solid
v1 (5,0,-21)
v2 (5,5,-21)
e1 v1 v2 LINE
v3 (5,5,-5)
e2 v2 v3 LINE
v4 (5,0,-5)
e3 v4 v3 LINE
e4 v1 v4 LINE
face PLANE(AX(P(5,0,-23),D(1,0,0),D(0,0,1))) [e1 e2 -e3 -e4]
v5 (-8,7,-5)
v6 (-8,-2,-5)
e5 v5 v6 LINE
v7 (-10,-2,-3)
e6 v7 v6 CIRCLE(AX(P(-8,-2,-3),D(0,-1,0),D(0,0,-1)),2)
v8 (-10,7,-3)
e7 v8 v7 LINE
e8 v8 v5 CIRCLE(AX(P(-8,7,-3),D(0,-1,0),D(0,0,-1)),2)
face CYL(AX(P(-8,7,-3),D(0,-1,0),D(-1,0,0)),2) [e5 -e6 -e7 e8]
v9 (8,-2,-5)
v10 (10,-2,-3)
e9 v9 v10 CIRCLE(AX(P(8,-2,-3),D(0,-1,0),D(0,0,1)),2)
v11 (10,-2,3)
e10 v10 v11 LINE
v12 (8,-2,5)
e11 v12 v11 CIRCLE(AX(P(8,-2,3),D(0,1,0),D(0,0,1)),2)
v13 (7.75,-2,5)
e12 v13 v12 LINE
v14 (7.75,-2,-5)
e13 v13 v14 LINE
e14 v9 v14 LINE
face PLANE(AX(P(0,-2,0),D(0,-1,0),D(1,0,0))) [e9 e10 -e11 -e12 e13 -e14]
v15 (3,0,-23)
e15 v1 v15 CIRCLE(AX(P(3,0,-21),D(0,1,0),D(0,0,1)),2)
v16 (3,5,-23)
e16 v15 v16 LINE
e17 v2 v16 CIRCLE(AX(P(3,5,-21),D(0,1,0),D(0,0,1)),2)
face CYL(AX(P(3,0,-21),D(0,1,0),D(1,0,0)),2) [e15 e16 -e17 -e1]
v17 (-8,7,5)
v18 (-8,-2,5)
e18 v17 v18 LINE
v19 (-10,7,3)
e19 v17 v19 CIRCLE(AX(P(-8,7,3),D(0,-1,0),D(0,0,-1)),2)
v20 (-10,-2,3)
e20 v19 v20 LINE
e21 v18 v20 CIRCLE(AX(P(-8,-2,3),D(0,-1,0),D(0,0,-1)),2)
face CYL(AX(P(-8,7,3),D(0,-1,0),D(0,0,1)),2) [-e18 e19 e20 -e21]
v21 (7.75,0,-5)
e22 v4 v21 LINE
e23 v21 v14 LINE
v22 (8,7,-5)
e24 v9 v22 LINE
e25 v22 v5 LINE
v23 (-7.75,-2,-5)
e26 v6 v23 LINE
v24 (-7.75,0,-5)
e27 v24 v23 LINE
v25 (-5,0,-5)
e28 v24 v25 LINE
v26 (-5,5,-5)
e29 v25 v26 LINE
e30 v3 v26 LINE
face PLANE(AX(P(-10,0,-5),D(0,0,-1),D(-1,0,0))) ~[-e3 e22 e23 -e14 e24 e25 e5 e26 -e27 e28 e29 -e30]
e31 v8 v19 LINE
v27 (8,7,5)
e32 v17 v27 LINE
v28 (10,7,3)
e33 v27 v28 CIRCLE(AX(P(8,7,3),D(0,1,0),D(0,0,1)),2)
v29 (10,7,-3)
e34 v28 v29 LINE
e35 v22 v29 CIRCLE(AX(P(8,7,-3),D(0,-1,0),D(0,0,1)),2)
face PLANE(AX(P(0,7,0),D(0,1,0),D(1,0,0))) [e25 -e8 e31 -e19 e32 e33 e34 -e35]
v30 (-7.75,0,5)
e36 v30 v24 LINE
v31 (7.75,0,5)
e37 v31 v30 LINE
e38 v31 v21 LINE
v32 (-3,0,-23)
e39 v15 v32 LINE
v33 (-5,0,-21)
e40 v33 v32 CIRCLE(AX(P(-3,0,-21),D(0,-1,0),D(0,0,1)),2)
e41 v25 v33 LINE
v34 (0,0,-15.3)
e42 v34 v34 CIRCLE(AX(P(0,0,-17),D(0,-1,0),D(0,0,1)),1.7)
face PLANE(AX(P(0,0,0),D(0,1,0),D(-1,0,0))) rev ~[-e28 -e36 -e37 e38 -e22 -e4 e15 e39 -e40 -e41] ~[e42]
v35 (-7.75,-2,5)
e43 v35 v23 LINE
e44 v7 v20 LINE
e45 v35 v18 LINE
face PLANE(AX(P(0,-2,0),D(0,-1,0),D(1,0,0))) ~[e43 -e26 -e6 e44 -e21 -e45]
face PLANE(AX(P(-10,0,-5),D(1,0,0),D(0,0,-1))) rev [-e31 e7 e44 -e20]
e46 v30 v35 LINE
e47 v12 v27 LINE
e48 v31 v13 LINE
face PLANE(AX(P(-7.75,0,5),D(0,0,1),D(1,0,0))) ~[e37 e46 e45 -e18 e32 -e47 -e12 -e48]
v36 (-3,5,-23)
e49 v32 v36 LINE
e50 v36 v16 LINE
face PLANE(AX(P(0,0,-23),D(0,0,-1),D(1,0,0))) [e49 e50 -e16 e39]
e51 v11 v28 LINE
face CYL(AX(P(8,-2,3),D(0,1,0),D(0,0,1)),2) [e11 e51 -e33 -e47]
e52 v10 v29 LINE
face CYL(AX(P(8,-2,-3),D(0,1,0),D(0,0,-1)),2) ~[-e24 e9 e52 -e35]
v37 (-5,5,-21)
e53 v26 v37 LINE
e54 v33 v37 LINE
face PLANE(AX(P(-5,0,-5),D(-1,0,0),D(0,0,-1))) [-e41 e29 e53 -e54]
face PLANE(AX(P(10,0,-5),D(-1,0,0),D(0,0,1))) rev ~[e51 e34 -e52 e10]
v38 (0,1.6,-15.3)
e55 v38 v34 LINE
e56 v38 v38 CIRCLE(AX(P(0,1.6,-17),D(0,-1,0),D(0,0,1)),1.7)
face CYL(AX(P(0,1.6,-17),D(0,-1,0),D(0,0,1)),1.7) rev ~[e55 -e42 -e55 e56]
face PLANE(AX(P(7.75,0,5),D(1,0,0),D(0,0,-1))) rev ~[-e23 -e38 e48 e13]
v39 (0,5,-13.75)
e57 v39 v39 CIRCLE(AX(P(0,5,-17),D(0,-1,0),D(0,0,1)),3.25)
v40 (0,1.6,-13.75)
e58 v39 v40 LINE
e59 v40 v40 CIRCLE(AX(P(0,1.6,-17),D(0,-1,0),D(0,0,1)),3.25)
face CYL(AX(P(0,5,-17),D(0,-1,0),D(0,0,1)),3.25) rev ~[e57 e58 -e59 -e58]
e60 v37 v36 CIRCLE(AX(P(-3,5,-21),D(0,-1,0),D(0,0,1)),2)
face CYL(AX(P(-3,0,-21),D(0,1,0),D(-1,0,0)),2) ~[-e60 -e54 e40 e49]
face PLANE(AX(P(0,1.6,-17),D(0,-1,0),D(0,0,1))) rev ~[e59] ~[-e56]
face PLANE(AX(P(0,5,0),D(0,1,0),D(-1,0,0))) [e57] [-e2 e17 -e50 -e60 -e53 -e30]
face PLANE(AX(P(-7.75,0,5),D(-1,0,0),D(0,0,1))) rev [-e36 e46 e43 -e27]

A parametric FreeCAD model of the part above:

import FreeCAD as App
import Part
import Sketcher

V = App.Vector


def edges_at(feature, points):
    """Names of the edges that pass closest to the given points."""
    edges = feature.Shape.Edges
    near = lambda p: min(range(len(edges)), key=lambda i: edges[i].distToShape(Part.Vertex(*p))[0])
    return sorted({f"Edge{near(p) + 1}" for p in points})

doc = App.newDocument("Part")
body = doc.addObject("PartDesign::Body", "Body")

sketch1 = body.newObject("Sketcher::SketchObject", "Sketch")
sketch1.AttachmentSupport = (doc.getObject("XZ_Plane"), [""])
sketch1.MapMode = "FlatFace"
sketch1.addGeometry([
    Part.LineSegment(V(5, -23, 0), V(-5, -23, 0)),
    Part.LineSegment(V(-5, -23, 0), V(-5, -5, 0)),
    Part.LineSegment(V(-5, -5, 0), V(-10, -5, 0)),
    Part.LineSegment(V(-10, -5, 0), V(-10, 5, 0)),
    Part.LineSegment(V(-10, 5, 0), V(10, 5, 0)),
    Part.LineSegment(V(10, 5, 0), V(10, -5, 0)),
    Part.LineSegment(V(10, -5, 0), V(5, -5, 0)),
    Part.LineSegment(V(5, -5, 0), V(5, -23, 0)),
], False)
sketch1.addConstraint([
    Sketcher.Constraint("Coincident", 0, 2, 1, 1),
    Sketcher.Constraint("Coincident", 1, 2, 2, 1),
    Sketcher.Constraint("Coincident", 2, 2, 3, 1),
    Sketcher.Constraint("Coincident", 3, 2, 4, 1),
    Sketcher.Constraint("Coincident", 4, 2, 5, 1),
    Sketcher.Constraint("Coincident", 5, 2, 6, 1),
    Sketcher.Constraint("Coincident", 6, 2, 7, 1),
    Sketcher.Constraint("Coincident", 7, 2, 0, 1),
    Sketcher.Constraint("Horizontal", 0),
    Sketcher.Constraint("Vertical", 1),
    Sketcher.Constraint("Horizontal", 2),
    Sketcher.Constraint("Vertical", 3),
    Sketcher.Constraint("Horizontal", 4),
    Sketcher.Constraint("Vertical", 5),
    Sketcher.Constraint("Horizontal", 6),
    Sketcher.Constraint("Vertical", 7),
    Sketcher.Constraint("Symmetric", 2, 2, 4, 2, -1, 1),
    Sketcher.Constraint("Symmetric", 1, 2, 6, 2, -2),
    Sketcher.Constraint("Equal", 0, 3),
    Sketcher.Constraint("DistanceX", 0, 2, 0, 1, 10.0),
    Sketcher.Constraint("DistanceX", 4, 1, 4, 2, 20.0),
    Sketcher.Constraint("DistanceY", 1, 1, 1, 2, 18.0),
])
pad1 = body.newObject("PartDesign::Pad", "Pad")
pad1.Profile = sketch1
pad1.Length = 5
pad1.Reversed = True

sketch2 = body.newObject("Sketcher::SketchObject", "Sketch001")
sketch2.AttachmentSupport = (doc.getObject("XZ_Plane"), [""])
sketch2.MapMode = "FlatFace"
sketch2.AttachmentOffset = App.Placement(V(0, 0, -5), App.Rotation())
sketch2.addGeometry(Part.Circle(V(0, -17, 0), V(0, 0, 1), 1.7), False)
sketch2.addConstraint([
    Sketcher.Constraint("PointOnObject", 0, 3, -2),
    Sketcher.Constraint("Diameter", 0, 3.4),
    Sketcher.Constraint("DistanceY", 0, 3, -1, 1, 17.0),
])
doc.recompute()
hole = body.newObject("PartDesign::Hole", "Hole")
hole.Profile = sketch2
hole.ThreadType = "None"
hole.Diameter = 3.4
hole.DepthType = "ThroughAll"
hole.HoleCutType = "Counterbore"
hole.HoleCutDiameter = 6.5
hole.HoleCutDepth = 3.4
hole.Reversed = True

sketch3 = body.newObject("Sketcher::SketchObject", "Sketch002")
sketch3.AttachmentSupport = (doc.getObject("XZ_Plane"), [""])
sketch3.MapMode = "FlatFace"
sketch3.AttachmentOffset = App.Placement(V(0, 0, -5), App.Rotation())
sketch3.addGeometry([
    Part.LineSegment(V(-10, -5, 0), V(-10, 5, 0)),
    Part.LineSegment(V(-10, 5, 0), V(10, 5, 0)),
    Part.LineSegment(V(10, 5, 0), V(10, -5, 0)),
    Part.LineSegment(V(10, -5, 0), V(-10, -5, 0)),
], False)
sketch3.addConstraint([
    Sketcher.Constraint("Coincident", 0, 2, 1, 1),
    Sketcher.Constraint("Coincident", 1, 2, 2, 1),
    Sketcher.Constraint("Coincident", 2, 2, 3, 1),
    Sketcher.Constraint("Coincident", 3, 2, 0, 1),
    Sketcher.Constraint("Vertical", 0),
    Sketcher.Constraint("Horizontal", 1),
    Sketcher.Constraint("Vertical", 2),
    Sketcher.Constraint("Horizontal", 3),
    Sketcher.Constraint("Symmetric", 0, 2, 2, 2, -1, 1),
    Sketcher.Constraint("DistanceX", 1, 1, 1, 2, 20.0),
    Sketcher.Constraint("DistanceY", 0, 1, 0, 2, 10.0),
])
pad2 = body.newObject("PartDesign::Pad", "Pad001")
pad2.Profile = sketch3
pad2.Length = 2
pad2.Reversed = True

sketch4 = body.newObject("Sketcher::SketchObject", "Sketch003")
sketch4.AttachmentSupport = (doc.getObject("XZ_Plane"), [""])
sketch4.MapMode = "FlatFace"
sketch4.addGeometry([
    Part.LineSegment(V(10, 5, 0), V(7.75, 5, 0)),
    Part.LineSegment(V(7.75, 5, 0), V(7.75, -5, 0)),
    Part.LineSegment(V(7.75, -5, 0), V(10, -5, 0)),
    Part.LineSegment(V(10, -5, 0), V(10, 5, 0)),
], False)
sketch4.addConstraint([
    Sketcher.Constraint("Coincident", 0, 2, 1, 1),
    Sketcher.Constraint("Coincident", 1, 2, 2, 1),
    Sketcher.Constraint("Coincident", 2, 2, 3, 1),
    Sketcher.Constraint("Coincident", 3, 2, 0, 1),
    Sketcher.Constraint("Horizontal", 0),
    Sketcher.Constraint("Vertical", 1),
    Sketcher.Constraint("Horizontal", 2),
    Sketcher.Constraint("Vertical", 3),
    Sketcher.Constraint("DistanceX", 0, 2, 0, 1, 2.25),
    Sketcher.Constraint("DistanceY", 1, 2, 1, 1, 10.0),
    Sketcher.Constraint("DistanceY", -1, 1, 0, 2, 5.0),
    Sketcher.Constraint("DistanceX", -1, 1, 2, 2, 10.0),
])
pad3 = body.newObject("PartDesign::Pad", "Pad002")
pad3.Profile = sketch4
pad3.Length = 2
doc.recompute()

mirrored = body.newObject("PartDesign::Mirrored", "Mirrored")
mirrored.Originals = [pad3]
mirrored.MirrorPlane = (doc.getObject("YZ_Plane"), [""])
body.Tip = mirrored
doc.recompute()

fillet = body.newObject("PartDesign::Fillet", "Fillet")
fillet.Base = (mirrored, edges_at(mirrored, [
    (5, 2.5, -23),
    (-5, 2.5, -23),
    (10, 2.5, 5),
    (-10, 2.5, 5),
]))
fillet.Radius = 2
doc.recompute()

fillet2 = body.newObject("PartDesign::Fillet", "Fillet001")
fillet2.Base = (fillet, edges_at(fillet, [(10, 2.5, -5), (-10, 2.5, -5)]))
fillet2.Radius = 2

doc.recompute()
